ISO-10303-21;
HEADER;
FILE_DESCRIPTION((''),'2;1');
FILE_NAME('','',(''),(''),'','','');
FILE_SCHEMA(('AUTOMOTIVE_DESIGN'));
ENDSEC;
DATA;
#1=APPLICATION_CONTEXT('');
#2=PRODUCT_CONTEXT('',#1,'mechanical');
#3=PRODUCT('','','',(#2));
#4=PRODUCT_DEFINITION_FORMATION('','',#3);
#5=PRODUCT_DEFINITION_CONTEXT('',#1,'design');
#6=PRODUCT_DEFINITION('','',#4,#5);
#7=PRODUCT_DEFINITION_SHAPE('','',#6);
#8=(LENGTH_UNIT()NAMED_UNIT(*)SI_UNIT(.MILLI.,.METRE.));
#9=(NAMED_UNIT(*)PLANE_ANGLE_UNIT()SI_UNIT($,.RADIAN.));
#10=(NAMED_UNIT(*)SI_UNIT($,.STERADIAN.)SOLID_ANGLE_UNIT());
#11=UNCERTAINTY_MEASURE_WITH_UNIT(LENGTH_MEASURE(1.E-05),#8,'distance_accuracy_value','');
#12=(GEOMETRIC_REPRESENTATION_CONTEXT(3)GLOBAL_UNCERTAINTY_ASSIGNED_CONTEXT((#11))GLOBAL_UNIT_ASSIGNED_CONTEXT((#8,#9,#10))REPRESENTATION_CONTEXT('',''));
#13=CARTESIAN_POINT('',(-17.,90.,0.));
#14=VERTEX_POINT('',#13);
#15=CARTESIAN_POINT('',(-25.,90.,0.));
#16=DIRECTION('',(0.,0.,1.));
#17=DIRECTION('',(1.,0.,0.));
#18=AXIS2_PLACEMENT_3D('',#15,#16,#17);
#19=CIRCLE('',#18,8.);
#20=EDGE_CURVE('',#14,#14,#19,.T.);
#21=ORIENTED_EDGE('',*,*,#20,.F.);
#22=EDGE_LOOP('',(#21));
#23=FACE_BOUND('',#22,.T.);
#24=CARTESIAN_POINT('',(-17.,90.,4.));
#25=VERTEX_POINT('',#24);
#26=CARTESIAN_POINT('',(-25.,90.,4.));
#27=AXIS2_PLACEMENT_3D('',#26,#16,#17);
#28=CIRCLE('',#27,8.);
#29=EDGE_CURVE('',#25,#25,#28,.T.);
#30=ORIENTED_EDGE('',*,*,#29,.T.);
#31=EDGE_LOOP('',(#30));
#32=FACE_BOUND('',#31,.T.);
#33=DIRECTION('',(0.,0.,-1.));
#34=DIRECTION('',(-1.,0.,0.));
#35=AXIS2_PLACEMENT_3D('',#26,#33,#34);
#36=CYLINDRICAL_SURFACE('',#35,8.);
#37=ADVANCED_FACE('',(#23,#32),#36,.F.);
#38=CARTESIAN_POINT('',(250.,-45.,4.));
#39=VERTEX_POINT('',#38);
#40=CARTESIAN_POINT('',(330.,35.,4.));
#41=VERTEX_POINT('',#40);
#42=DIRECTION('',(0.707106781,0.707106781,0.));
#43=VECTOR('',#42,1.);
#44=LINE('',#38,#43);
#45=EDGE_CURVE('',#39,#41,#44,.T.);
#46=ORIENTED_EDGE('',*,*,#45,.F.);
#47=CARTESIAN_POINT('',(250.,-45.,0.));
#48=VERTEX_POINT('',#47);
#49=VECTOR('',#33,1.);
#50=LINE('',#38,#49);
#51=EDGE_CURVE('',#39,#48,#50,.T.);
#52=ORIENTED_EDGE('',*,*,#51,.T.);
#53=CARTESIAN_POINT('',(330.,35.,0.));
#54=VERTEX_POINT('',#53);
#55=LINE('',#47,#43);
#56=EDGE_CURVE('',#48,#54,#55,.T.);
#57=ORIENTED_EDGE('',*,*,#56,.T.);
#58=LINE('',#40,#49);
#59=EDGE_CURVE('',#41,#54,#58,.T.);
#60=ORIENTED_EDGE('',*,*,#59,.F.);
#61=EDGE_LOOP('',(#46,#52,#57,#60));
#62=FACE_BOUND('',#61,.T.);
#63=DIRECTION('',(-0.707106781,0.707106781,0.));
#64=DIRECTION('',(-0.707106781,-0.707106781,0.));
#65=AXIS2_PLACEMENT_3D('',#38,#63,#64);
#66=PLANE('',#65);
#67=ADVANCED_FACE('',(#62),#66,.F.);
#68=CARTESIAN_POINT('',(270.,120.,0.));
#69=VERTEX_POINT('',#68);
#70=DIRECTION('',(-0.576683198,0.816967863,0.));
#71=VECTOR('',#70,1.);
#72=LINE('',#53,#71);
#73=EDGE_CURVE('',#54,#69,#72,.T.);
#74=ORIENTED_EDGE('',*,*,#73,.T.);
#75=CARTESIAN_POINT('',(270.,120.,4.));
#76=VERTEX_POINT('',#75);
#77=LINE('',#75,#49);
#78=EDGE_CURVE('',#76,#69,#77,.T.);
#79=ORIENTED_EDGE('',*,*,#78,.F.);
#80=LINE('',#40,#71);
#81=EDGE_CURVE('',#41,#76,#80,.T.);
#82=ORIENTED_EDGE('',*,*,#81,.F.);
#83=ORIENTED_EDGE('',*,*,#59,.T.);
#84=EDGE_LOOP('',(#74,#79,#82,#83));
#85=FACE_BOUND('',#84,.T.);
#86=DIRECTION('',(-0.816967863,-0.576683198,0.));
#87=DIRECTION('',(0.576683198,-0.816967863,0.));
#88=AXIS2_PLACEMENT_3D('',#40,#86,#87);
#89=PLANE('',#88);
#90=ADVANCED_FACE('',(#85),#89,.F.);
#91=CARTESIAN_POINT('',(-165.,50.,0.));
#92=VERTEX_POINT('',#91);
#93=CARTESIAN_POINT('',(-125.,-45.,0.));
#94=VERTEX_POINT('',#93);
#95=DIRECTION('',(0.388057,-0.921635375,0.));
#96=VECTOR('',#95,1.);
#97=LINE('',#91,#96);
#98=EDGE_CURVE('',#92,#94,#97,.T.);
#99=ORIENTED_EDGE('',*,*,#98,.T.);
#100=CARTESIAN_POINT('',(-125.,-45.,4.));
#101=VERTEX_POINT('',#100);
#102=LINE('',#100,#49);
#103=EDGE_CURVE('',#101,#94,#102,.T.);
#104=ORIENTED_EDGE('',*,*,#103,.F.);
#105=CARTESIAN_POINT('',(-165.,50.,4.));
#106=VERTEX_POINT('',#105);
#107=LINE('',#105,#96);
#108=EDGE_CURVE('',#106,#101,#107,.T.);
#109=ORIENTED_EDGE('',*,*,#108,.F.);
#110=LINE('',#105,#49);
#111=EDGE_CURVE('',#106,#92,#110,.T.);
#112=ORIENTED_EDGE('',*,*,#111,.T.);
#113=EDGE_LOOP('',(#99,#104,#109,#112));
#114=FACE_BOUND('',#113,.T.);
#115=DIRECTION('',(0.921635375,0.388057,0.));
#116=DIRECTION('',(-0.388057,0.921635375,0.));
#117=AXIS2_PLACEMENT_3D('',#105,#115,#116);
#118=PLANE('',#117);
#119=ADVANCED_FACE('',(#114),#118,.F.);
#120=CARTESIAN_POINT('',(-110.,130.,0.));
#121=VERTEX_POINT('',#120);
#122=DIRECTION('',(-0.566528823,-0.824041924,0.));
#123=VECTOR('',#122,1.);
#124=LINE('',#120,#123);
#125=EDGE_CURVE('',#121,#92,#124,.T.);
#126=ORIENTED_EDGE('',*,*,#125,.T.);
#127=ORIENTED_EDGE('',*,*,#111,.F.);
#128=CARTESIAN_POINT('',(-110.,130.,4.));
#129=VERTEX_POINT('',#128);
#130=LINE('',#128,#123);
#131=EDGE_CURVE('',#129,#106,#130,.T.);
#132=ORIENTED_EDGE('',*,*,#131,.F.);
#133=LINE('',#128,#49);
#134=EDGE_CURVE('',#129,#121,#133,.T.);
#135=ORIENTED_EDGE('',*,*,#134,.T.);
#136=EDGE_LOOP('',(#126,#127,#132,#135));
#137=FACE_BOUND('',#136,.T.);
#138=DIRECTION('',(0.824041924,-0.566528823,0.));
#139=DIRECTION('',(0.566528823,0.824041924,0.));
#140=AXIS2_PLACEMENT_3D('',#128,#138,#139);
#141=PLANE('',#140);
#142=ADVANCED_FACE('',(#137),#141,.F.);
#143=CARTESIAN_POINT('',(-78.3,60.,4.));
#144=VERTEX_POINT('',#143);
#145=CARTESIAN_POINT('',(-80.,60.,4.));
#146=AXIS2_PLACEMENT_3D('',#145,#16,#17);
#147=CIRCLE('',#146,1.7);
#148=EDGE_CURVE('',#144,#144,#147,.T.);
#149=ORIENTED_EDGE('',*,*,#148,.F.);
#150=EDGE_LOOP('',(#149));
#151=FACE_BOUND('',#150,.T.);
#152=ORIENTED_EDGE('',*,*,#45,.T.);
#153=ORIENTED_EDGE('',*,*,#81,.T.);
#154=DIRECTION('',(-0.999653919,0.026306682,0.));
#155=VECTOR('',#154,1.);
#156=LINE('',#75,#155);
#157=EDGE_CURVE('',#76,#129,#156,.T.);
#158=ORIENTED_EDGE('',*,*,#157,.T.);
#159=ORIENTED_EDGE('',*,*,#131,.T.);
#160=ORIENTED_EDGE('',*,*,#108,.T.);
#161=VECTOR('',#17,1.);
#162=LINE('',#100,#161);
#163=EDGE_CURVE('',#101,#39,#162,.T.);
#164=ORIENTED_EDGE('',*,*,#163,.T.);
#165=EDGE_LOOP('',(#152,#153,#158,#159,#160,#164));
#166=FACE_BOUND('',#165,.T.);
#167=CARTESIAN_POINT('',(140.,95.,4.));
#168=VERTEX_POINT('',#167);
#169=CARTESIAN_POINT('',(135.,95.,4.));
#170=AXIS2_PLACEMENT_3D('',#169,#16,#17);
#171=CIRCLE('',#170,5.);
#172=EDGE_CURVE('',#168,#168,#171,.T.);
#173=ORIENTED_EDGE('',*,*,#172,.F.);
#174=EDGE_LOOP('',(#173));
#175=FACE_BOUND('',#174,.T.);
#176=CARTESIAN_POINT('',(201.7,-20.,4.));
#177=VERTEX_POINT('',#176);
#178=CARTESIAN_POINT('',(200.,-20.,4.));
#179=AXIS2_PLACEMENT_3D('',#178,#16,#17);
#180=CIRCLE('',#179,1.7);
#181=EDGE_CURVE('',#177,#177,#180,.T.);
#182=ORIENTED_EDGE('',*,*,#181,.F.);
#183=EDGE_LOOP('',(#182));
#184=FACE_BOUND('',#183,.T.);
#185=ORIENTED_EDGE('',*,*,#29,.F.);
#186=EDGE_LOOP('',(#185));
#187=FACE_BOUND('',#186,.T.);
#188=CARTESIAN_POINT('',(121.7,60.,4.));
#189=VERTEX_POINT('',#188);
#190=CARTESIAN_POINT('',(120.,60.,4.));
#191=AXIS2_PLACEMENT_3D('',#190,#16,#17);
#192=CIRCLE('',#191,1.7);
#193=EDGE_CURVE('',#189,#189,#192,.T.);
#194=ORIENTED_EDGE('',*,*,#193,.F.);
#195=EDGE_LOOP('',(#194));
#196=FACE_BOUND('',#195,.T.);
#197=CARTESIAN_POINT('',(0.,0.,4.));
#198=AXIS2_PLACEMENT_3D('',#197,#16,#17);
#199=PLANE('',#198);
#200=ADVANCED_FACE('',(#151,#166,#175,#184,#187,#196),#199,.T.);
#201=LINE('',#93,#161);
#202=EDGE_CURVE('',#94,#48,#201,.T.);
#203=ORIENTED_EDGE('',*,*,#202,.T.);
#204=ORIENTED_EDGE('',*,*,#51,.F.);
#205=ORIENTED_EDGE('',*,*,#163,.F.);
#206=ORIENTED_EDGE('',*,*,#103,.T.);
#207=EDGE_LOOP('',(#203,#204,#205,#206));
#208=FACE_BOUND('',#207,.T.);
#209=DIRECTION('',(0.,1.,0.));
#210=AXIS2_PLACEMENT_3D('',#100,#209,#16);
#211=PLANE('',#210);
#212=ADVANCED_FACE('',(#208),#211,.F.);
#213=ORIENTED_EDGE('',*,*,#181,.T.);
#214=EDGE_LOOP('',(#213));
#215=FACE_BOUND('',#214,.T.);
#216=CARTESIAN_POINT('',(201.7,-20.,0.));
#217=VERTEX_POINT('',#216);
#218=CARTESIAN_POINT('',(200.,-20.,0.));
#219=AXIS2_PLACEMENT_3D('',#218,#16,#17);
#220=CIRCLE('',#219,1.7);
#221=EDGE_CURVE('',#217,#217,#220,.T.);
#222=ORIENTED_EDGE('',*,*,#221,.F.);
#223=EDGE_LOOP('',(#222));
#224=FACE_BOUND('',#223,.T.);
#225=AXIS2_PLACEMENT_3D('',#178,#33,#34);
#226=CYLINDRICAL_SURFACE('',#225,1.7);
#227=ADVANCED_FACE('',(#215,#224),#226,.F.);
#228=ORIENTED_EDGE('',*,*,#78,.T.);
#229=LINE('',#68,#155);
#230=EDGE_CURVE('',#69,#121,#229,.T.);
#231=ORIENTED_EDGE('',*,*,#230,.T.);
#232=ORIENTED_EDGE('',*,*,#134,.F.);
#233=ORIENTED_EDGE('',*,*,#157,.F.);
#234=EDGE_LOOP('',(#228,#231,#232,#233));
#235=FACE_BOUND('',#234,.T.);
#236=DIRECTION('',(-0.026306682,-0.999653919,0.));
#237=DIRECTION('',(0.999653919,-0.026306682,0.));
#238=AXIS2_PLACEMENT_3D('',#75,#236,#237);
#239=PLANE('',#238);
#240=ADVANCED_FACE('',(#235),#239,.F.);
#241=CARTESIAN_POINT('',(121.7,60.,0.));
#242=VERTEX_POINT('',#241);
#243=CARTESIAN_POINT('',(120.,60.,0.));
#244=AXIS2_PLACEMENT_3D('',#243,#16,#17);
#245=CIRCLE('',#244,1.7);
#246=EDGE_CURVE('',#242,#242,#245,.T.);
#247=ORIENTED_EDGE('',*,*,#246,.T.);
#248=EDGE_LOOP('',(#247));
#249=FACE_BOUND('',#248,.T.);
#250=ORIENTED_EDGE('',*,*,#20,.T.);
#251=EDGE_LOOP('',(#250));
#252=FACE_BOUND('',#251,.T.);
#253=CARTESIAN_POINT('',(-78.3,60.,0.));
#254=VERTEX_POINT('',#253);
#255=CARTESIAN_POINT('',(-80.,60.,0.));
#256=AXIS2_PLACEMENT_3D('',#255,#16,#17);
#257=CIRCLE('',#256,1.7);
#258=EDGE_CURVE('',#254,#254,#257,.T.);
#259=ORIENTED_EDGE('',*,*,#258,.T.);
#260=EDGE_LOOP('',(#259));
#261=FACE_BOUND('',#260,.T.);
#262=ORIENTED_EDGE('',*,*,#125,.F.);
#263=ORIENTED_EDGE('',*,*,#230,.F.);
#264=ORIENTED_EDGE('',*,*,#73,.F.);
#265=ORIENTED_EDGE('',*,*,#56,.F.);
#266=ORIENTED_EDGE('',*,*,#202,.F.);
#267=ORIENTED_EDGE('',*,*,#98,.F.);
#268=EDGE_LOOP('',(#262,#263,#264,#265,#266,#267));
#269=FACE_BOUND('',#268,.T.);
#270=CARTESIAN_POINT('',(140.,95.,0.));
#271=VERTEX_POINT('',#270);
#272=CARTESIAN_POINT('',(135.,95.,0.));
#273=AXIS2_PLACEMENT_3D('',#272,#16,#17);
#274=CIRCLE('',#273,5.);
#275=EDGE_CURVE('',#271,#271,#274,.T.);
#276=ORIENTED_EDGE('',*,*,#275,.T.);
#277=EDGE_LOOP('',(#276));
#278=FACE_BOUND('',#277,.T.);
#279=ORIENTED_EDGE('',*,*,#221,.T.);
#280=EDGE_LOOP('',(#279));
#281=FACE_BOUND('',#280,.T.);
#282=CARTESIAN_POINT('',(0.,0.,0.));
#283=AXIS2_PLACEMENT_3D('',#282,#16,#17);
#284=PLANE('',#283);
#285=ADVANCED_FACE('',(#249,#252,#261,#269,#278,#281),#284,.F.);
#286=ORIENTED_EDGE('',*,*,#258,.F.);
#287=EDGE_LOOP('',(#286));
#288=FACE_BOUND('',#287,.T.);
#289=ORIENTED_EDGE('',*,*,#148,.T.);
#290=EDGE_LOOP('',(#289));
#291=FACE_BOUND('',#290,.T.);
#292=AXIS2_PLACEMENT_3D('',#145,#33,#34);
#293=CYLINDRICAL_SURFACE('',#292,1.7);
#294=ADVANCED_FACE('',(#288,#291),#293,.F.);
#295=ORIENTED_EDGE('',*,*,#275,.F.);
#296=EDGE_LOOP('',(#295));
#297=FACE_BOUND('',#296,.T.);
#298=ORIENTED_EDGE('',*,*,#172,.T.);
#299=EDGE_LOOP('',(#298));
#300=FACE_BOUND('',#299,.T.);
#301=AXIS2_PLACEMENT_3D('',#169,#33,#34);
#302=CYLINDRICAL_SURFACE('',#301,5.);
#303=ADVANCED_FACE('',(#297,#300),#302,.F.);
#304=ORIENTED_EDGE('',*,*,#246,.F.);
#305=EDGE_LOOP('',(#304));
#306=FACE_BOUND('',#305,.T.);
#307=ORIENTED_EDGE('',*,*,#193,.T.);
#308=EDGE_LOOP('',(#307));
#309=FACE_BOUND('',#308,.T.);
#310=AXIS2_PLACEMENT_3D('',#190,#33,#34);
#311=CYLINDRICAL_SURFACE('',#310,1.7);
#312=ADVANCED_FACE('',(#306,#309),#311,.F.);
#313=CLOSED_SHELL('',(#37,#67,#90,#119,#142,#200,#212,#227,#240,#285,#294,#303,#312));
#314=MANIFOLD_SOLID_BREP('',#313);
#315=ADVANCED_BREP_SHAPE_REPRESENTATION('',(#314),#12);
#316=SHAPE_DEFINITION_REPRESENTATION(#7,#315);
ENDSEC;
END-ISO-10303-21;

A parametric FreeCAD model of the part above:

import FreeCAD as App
import Part
import Sketcher
from FreeCAD import Vector
Q = App.Units.Quantity

doc = App.newDocument("Part")
body = doc.addObject("PartDesign::Body", "Body")

sketch1 = doc.addObject("Sketcher::SketchObject", "Sketch")
body.addObject(sketch1)
sketch1.AttachmentSupport = (doc.XY_Plane, [""])
sketch1.MapMode = "FlatFace"
sketch1.addGeometry([
    Part.LineSegment(Vector(-125, -45, 0), Vector(250, -45, 0)),
    Part.LineSegment(Vector(250, -45, 0), Vector(330, 35, 0)),
    Part.LineSegment(Vector(330, 35, 0), Vector(270, 120, 0)),
    Part.LineSegment(Vector(270, 120, 0), Vector(-110, 130, 0)),
    Part.LineSegment(Vector(-110, 130, 0), Vector(-165, 50, 0)),
    Part.LineSegment(Vector(-165, 50, 0), Vector(-125, -45, 0)),
    Part.Circle(Vector(200, -20, 0), Vector(0, 0, 1), 1.7),
    Part.Circle(Vector(-80, 60, 0), Vector(0, 0, 1), 1.7),
    Part.Circle(Vector(-25, 90, 0), Vector(0, 0, 1), 8),
    Part.Circle(Vector(120, 60, 0), Vector(0, 0, 1), 1.7),
    Part.Circle(Vector(135, 95, 0), Vector(0, 0, 1), 5),
], False)
sketch1.addConstraint([
    Sketcher.Constraint("Coincident", 0, 2, 1, 1),
    Sketcher.Constraint("Coincident", 1, 2, 2, 1),
    Sketcher.Constraint("Coincident", 2, 2, 3, 1),
    Sketcher.Constraint("Coincident", 3, 2, 4, 1),
    Sketcher.Constraint("Coincident", 4, 2, 5, 1),
    Sketcher.Constraint("Coincident", 5, 2, 0, 1),
    Sketcher.Constraint("Horizontal", 0),
    Sketcher.Constraint("Equal", 6, 7),
    Sketcher.Constraint("Equal", 7, 9),
    Sketcher.Constraint("Horizontal", 7, 3, 9, 3),
    Sketcher.Constraint("Diameter", 8, Q("16 mm")),
    Sketcher.Constraint("Diameter", 10, Q("10 mm")),
    Sketcher.Constraint("Diameter", 6, Q("3.4 mm")),
    Sketcher.Constraint("DistanceX", 0, 1, 0, 2, Q("375 mm")),
    Sketcher.Constraint("Angle", 1, Q("45 deg")),
    Sketcher.Constraint("DistanceX", -1, 1, 6, 3, Q("200 mm")),
    Sketcher.Constraint("DistanceY", 6, 3, -1, 1, Q("20 mm")),
    Sketcher.Constraint("DistanceX", 7, 3, -1, 1, Q("80 mm")),
    Sketcher.Constraint("DistanceY", -1, 1, 7, 3, Q("60 mm")),
    Sketcher.Constraint("DistanceX", 8, 3, -1, 1, Q("25 mm")),
    Sketcher.Constraint("DistanceY", -1, 1, 8, 3, Q("90 mm")),
    Sketcher.Constraint("DistanceX", -1, 1, 9, 3, Q("120 mm")),
    Sketcher.Constraint("DistanceX", -1, 1, 10, 3, Q("135 mm")),
    Sketcher.Constraint("DistanceY", -1, 1, 10, 3, Q("95 mm")),
    Sketcher.Constraint("DistanceX", -1, 1, 0, 2, Q("250 mm")),
    Sketcher.Constraint("DistanceY", 0, 2, -1, 1, Q("45 mm")),
    Sketcher.Constraint("DistanceX", -1, 1, 1, 2, Q("330 mm")),
    Sketcher.Constraint("DistanceX", -1, 1, 2, 2, Q("270 mm")),
    Sketcher.Constraint("DistanceY", -1, 1, 2, 2, Q("120 mm")),
    Sketcher.Constraint("DistanceX", 3, 2, -1, 1, Q("110 mm")),
    Sketcher.Constraint("DistanceY", -1, 1, 3, 2, Q("130 mm")),
    Sketcher.Constraint("DistanceX", 4, 2, -1, 1, Q("165 mm")),
    Sketcher.Constraint("DistanceY", -1, 1, 4, 2, Q("50 mm")),
])
pad1 = doc.addObject("PartDesign::Pad", "Pad")
body.addObject(pad1)
pad1.Profile = sketch1
pad1.Length = 4

doc.recompute()
